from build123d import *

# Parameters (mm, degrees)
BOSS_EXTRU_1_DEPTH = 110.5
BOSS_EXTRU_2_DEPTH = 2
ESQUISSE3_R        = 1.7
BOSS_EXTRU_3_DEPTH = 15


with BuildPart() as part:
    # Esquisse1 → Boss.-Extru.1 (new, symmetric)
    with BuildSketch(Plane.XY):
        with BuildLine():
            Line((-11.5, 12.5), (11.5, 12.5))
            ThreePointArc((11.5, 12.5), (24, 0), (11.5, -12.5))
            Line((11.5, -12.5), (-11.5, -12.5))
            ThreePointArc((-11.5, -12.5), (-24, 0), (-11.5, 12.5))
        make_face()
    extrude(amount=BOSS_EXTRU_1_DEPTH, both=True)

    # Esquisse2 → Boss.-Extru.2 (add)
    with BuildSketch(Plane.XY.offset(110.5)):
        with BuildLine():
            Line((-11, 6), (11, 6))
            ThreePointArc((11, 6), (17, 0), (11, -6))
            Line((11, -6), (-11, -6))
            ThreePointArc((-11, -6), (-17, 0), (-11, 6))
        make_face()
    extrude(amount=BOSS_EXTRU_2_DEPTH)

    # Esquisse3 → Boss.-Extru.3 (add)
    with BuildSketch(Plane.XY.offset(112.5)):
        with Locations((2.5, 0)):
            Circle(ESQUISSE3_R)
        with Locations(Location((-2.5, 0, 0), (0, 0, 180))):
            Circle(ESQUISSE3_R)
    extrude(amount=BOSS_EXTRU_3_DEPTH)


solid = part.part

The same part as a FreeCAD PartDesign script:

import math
import FreeCAD as App
import Part
import Sketcher

V = App.Vector
Q = App.Units.Quantity

doc = App.newDocument("Part")
body = doc.addObject("PartDesign::Body", "Body")

# Sketch on XY plane
sketch1 = body.newObject("Sketcher::SketchObject", "Sketch")
sketch1.AttachmentSupport = (doc.getObject("XY_Plane"), [""])
sketch1.MapMode = "FlatFace"
sketch1.addGeometry(Part.LineSegment(V(12, 12, 0), V(-12, 12, 0)), False)
sketch1.addGeometry(Part.ArcOfCircle(Part.Circle(V(-12, 0, 0), V(0, 0, 1), 12), math.radians(90), math.radians(270)), False)
sketch1.addGeometry(Part.LineSegment(V(-12, -12, 0), V(12, -12, 0)), False)
sketch1.addGeometry(Part.ArcOfCircle(Part.Circle(V(12, 0, 0), V(0, 0, 1), 12), math.radians(-90), math.radians(90)), False)
sketch1.addConstraint(Sketcher.Constraint("Tangent", 0, 2, 1, 1))
sketch1.addConstraint(Sketcher.Constraint("Tangent", 1, 2, 2, 1))
sketch1.addConstraint(Sketcher.Constraint("Tangent", 2, 2, 3, 1))
sketch1.addConstraint(Sketcher.Constraint("Tangent", 3, 2, 0, 1))
sketch1.addConstraint(Sketcher.Constraint("Horizontal", 0))
sketch1.addConstraint(Sketcher.Constraint("Horizontal", 2))
sketch1.addConstraint(Sketcher.Constraint("Symmetric", 1, 3, 3, 3, -1, 1))
sketch1.addConstraint(Sketcher.Constraint("Radius", 1, Q("12.5 mm")))
sketch1.addConstraint(Sketcher.Constraint("DistanceX", 0, 2, 0, 1, Q("23 mm")))
pad1 = body.newObject("PartDesign::Pad", "Pad")
pad1.Profile = sketch1
pad1.Length = 221
pad1.Midplane = True

# Sketch on XY plane
sketch2 = body.newObject("Sketcher::SketchObject", "Sketch001")
sketch2.AttachmentSupport = (doc.getObject("XY_Plane"), [""])
sketch2.MapMode = "FlatFace"
sketch2.AttachmentOffset = App.Placement(V(0, 0, 110.5), App.Rotation())
sketch2.addGeometry(Part.LineSegment(V(11, 6, 0), V(-11, 6, 0)), False)
sketch2.addGeometry(Part.ArcOfCircle(Part.Circle(V(-11, 0, 0), V(0, 0, 1), 6), math.radians(90), math.radians(270)), False)
sketch2.addGeometry(Part.LineSegment(V(-11, -6, 0), V(11, -6, 0)), False)
sketch2.addGeometry(Part.ArcOfCircle(Part.Circle(V(11, 0, 0), V(0, 0, 1), 6), math.radians(-90), math.radians(90)), False)
sketch2.addConstraint(Sketcher.Constraint("Tangent", 0, 2, 1, 1))
sketch2.addConstraint(Sketcher.Constraint("Tangent", 1, 2, 2, 1))
sketch2.addConstraint(Sketcher.Constraint("Tangent", 2, 2, 3, 1))
sketch2.addConstraint(Sketcher.Constraint("Tangent", 3, 2, 0, 1))
sketch2.addConstraint(Sketcher.Constraint("Horizontal", 0))
sketch2.addConstraint(Sketcher.Constraint("Horizontal", 2))
sketch2.addConstraint(Sketcher.Constraint("Symmetric", 1, 3, 3, 3, -1, 1))
sketch2.addConstraint(Sketcher.Constraint("Radius", 1, Q("6 mm")))
sketch2.addConstraint(Sketcher.Constraint("DistanceX", 0, 2, 0, 1, Q("22 mm")))
pad2 = body.newObject("PartDesign::Pad", "Pad001")
pad2.Profile = sketch2
pad2.Length = 2

# Sketch on XY plane
sketch3 = body.newObject("Sketcher::SketchObject", "Sketch002")
sketch3.AttachmentSupport = (doc.getObject("XY_Plane"), [""])
sketch3.MapMode = "FlatFace"
sketch3.AttachmentOffset = App.Placement(V(0, 0, 112.5), App.Rotation())
sketch3.addGeometry(Part.Circle(V(2.5, 0, 0), V(0, 0, 1), 1.7), False)
sketch3.addGeometry(Part.Circle(V(-2.5, 0, 0), V(0, 0, 1), 1.7), False)
sketch3.addConstraint(Sketcher.Constraint("Equal", 0, 1))
sketch3.addConstraint(Sketcher.Constraint("Symmetric", 0, 3, 1, 3, -1, 1))
sketch3.addConstraint(Sketcher.Constraint("PointOnObject", 0, 3, -1))
sketch3.addConstraint(Sketcher.Constraint("Diameter", 0, Q("3.4 mm")))
sketch3.addConstraint(Sketcher.Constraint("DistanceX", 1, 3, 0, 3, Q("5 mm")))
pad3 = body.newObject("PartDesign::Pad", "Pad002")
pad3.Profile = sketch3
pad3.Length = 15

doc.recompute()
